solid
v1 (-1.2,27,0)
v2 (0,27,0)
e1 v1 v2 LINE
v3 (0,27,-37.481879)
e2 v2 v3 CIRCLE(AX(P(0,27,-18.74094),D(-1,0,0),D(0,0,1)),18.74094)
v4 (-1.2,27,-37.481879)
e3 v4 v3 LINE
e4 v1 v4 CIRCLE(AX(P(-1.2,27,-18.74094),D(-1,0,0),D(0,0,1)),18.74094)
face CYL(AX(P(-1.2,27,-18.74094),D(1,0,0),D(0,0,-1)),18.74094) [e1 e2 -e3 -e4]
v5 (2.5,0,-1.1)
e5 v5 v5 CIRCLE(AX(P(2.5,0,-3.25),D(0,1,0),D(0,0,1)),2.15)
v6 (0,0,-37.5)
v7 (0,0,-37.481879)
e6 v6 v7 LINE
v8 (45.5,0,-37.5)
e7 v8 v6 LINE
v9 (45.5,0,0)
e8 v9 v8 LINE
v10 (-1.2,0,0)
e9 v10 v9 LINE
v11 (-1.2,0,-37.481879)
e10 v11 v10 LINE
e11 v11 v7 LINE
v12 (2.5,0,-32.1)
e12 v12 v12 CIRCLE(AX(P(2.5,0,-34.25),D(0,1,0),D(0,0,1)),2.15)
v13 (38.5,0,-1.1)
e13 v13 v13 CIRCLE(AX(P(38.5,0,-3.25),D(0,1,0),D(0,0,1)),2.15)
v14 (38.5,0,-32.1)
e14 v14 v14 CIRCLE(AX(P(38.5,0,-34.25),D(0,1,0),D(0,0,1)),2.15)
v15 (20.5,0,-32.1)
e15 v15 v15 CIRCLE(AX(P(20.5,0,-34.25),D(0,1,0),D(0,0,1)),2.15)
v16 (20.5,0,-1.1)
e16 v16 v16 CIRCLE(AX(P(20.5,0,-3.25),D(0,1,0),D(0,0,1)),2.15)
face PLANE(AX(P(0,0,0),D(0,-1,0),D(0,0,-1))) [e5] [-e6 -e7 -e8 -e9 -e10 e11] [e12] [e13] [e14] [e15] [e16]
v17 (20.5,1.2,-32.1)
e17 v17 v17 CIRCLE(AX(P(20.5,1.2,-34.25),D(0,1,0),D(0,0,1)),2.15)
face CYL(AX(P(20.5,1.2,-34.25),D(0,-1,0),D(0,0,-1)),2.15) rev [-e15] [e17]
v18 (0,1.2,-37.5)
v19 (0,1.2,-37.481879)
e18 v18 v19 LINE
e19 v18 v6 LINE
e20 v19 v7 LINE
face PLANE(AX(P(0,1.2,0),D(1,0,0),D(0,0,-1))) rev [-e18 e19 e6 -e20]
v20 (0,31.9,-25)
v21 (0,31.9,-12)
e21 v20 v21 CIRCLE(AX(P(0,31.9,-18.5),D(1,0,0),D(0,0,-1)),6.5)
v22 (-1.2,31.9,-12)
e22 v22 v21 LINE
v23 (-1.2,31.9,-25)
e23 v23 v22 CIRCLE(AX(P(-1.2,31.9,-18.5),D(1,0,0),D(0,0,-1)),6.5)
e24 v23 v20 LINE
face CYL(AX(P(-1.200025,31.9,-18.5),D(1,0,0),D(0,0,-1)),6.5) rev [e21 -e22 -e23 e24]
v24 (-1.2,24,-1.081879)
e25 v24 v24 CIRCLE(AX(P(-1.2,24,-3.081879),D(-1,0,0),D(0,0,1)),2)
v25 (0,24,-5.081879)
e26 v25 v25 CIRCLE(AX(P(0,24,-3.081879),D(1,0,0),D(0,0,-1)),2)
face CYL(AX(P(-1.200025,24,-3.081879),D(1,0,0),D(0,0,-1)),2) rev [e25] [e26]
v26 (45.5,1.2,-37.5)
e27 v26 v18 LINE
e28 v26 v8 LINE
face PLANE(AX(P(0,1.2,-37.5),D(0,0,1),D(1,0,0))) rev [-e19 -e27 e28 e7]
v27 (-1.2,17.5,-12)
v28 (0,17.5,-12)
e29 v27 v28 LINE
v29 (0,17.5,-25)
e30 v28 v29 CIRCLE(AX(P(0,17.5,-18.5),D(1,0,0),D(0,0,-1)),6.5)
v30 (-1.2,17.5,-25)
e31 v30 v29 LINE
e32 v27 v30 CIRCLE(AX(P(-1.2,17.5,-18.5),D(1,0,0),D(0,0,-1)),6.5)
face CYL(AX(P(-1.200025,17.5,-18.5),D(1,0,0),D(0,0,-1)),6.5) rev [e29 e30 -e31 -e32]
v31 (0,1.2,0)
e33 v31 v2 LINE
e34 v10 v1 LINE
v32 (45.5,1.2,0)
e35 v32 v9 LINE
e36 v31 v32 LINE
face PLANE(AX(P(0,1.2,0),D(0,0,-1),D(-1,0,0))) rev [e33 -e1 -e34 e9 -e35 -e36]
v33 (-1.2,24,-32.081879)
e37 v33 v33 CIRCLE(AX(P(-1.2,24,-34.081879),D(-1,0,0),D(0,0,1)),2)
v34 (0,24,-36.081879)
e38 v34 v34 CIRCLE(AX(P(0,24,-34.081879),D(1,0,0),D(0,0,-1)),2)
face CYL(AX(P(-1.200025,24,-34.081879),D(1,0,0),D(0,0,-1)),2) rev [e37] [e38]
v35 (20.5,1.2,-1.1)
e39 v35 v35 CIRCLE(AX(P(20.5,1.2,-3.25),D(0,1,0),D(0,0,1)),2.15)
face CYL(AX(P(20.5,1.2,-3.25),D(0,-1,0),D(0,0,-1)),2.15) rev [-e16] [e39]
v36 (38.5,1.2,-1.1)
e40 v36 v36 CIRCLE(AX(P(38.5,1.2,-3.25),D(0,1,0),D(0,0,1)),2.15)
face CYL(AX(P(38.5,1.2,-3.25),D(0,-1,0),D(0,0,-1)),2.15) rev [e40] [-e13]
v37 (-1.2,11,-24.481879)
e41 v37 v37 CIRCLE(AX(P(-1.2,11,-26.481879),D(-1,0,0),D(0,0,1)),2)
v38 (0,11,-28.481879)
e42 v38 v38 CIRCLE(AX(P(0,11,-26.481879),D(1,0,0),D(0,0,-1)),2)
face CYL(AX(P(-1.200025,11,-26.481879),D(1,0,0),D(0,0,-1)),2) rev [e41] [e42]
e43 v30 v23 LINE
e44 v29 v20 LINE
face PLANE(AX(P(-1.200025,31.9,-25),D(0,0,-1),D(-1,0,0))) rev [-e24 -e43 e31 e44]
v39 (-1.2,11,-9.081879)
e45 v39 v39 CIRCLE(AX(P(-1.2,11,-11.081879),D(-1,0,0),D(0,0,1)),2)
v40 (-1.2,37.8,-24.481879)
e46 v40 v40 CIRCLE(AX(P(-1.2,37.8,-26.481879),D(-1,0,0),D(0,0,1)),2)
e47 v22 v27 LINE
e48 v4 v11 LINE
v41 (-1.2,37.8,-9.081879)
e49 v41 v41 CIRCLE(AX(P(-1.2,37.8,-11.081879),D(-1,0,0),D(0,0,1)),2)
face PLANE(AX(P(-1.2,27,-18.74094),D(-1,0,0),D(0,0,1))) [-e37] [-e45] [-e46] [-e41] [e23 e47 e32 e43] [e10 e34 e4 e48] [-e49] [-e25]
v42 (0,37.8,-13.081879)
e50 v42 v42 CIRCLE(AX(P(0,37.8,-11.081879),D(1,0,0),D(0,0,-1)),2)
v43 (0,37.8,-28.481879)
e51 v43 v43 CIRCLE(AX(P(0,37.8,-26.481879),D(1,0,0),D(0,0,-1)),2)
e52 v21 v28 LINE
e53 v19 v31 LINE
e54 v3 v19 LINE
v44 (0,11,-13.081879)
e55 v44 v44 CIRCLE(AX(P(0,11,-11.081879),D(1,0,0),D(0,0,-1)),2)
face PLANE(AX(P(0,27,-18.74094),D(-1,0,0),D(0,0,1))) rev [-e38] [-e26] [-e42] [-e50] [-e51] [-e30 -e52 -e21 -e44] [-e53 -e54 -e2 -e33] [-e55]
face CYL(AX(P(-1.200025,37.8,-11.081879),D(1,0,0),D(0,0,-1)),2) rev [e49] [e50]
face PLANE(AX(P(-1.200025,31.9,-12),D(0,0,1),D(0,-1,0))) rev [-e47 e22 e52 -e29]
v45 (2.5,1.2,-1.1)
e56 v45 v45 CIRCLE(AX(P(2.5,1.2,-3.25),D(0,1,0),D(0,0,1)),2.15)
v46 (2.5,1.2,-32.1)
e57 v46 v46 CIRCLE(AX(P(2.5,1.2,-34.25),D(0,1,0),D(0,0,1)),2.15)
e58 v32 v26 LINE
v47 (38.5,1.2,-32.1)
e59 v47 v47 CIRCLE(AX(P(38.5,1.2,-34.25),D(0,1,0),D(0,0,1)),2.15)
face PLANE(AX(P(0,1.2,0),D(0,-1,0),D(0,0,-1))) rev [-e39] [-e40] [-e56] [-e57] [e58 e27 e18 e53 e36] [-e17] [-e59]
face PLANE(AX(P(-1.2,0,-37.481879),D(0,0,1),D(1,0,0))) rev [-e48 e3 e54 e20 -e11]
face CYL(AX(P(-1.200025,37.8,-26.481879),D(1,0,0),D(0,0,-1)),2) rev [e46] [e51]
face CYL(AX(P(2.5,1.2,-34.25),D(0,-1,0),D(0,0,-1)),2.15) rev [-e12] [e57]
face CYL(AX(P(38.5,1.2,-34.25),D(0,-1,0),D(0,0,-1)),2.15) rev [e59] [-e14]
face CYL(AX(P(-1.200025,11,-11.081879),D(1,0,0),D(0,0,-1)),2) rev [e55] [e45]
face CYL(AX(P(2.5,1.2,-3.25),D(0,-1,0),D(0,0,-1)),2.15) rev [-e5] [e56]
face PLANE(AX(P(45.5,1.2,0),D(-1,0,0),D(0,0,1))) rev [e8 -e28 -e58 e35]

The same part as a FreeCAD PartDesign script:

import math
import FreeCAD as App
import Part
import Sketcher

V = App.Vector

doc = App.newDocument("Part")
body = doc.addObject("PartDesign::Body", "Body")

# Sketch on XZ plane
sketch1 = body.newObject("Sketcher::SketchObject", "Sketch")
sketch1.AttachmentSupport = (doc.getObject("XZ_Plane"), [""])
sketch1.MapMode = "FlatFace"
sketch1.addGeometry([
    Part.LineSegment(V(0, -37.5, 0), V(0, 0, 0)),  # 0
    Part.LineSegment(V(0, 0, 0), V(45.5, 0, 0)),  # 1
    Part.LineSegment(V(45.5, 0, 0), V(45.5, -37.5, 0)),  # 2
    Part.LineSegment(V(45.5, -37.5, 0), V(0, -37.5, 0)),  # 3
    Part.Circle(V(2.5, -3.2, 0), V(0, 0, 1), 2.1),  # 4
    Part.Circle(V(20.5, -3.2, 0), V(0, 0, 1), 2.1),  # 5
    Part.Circle(V(38.5, -3.2, 0), V(0, 0, 1), 2.1),  # 6
    Part.Circle(V(2.5, -34.2, 0), V(0, 0, 1), 2.1),  # 7
    Part.Circle(V(20.5, -34.2, 0), V(0, 0, 1), 2.1),  # 8
    Part.Circle(V(38.5, -34.2, 0), V(0, 0, 1), 2.1),  # 9
], False)
sketch1.addConstraint([
    Sketcher.Constraint("Coincident", 0, 2, 1, 1),
    Sketcher.Constraint("Coincident", 1, 2, 2, 1),
    Sketcher.Constraint("Coincident", 2, 2, 3, 1),
    Sketcher.Constraint("Coincident", 3, 2, 0, 1),
    Sketcher.Constraint("Vertical", 0),
    Sketcher.Constraint("Horizontal", 1),
    Sketcher.Constraint("Vertical", 2),
    Sketcher.Constraint("Horizontal", 3),
    Sketcher.Constraint("Coincident", 0, 2, -1, 1),
    Sketcher.Constraint("Equal", 4, 5),
    Sketcher.Constraint("Equal", 5, 6),
    Sketcher.Constraint("Equal", 6, 7),
    Sketcher.Constraint("Equal", 7, 8),
    Sketcher.Constraint("Equal", 8, 9),
    Sketcher.Constraint("Horizontal", 4, 3, 5, 3),
    Sketcher.Constraint("Horizontal", 5, 3, 6, 3),
    Sketcher.Constraint("Horizontal", 7, 3, 8, 3),
    Sketcher.Constraint("Horizontal", 8, 3, 9, 3),
    Sketcher.Constraint("Vertical", 4, 3, 7, 3),
    Sketcher.Constraint("Vertical", 5, 3, 8, 3),
    Sketcher.Constraint("Vertical", 6, 3, 9, 3),
    Sketcher.Constraint("Diameter", 4, 4.3),
    Sketcher.Constraint("DistanceX", 1, 1, 1, 2, 45.5),
    Sketcher.Constraint("DistanceY", 0, 1, 0, 2, 37.5),
    Sketcher.Constraint("DistanceX", 4, 3, 5, 3, 18.0),
    Sketcher.Constraint("DistanceX", 5, 3, 6, 3, 18.0),
    Sketcher.Constraint("DistanceY", 7, 3, 4, 3, 31.0),
    Sketcher.Constraint("DistanceX", 6, 3, 1, 2, 7.0),
    Sketcher.Constraint("DistanceY", 4, 3, -1, 1, 3.25),
])
pad1 = body.newObject("PartDesign::Pad", "Pad")
pad1.Profile = sketch1
pad1.Length = 1.2
pad1.Reversed = True

# Sketch on YZ plane
sketch2 = body.newObject("Sketcher::SketchObject", "Sketch001")
sketch2.AttachmentSupport = (doc.getObject("YZ_Plane"), [""])
sketch2.MapMode = "FlatFace"
sketch2.addGeometry([
    Part.LineSegment(V(27, -37, 0), V(0, -37, 0)),
    Part.LineSegment(V(0, -37, 0), V(0, 0, 0)),
    Part.LineSegment(V(0, 0, 0), V(27, 0, 0)),
    Part.ArcOfCircle(Part.Circle(V(27, -19, 0), V(0, 0, 1), 19), math.radians(-90), math.radians(90)),
], False)
sketch2.addConstraint([
    Sketcher.Constraint("Coincident", 0, 2, 1, 1),
    Sketcher.Constraint("Coincident", 1, 2, 2, 1),
    Sketcher.Constraint("Tangent", 2, 2, 3, 2),
    Sketcher.Constraint("Tangent", 3, 1, 0, 1),
    Sketcher.Constraint("Horizontal", 0),
    Sketcher.Constraint("Vertical", 1),
    Sketcher.Constraint("Horizontal", 2),
    Sketcher.Constraint("Coincident", 1, 2, -1, 1),
    Sketcher.Constraint("DistanceX", 0, 2, 0, 1, 27.0),
    Sketcher.Constraint("Radius", 3, 18.74094),
])
pad2 = body.newObject("PartDesign::Pad", "Pad001")
pad2.Profile = sketch2
pad2.Length = 1.2
pad2.Reversed = True

# Sketch on YZ plane
sketch3 = body.newObject("Sketcher::SketchObject", "Sketch002")
sketch3.AttachmentSupport = (doc.getObject("YZ_Plane"), [""])
sketch3.MapMode = "FlatFace"
sketch3.addGeometry([
    Part.LineSegment(V(18, -25, 0), V(32, -25, 0)),
    Part.ArcOfCircle(Part.Circle(V(32, -18, 0), V(0, 0, 1), 6), math.radians(-90), math.radians(90)),
    Part.LineSegment(V(32, -12, 0), V(18, -12, 0)),
    Part.ArcOfCircle(Part.Circle(V(18, -18, 0), V(0, 0, 1), 6), math.radians(90), math.radians(270)),
], False)
sketch3.addConstraint([
    Sketcher.Constraint("Tangent", 0, 2, 1, 1),
    Sketcher.Constraint("Tangent", 1, 2, 2, 1),
    Sketcher.Constraint("Tangent", 2, 2, 3, 1),
    Sketcher.Constraint("Tangent", 3, 2, 0, 1),
    Sketcher.Constraint("Horizontal", 0),
    Sketcher.Constraint("Horizontal", 2),
    Sketcher.Constraint("Radius", 1, 6.5),
    Sketcher.Constraint("DistanceX", 0, 1, 0, 2, 14.4),
    Sketcher.Constraint("DistanceY", 0, 2, -1, 1, 25.0),
    Sketcher.Constraint("DistanceX", -1, 1, 1, 3, 31.9),
])
pocket1 = body.newObject("PartDesign::Pocket", "Pocket")
pocket1.Profile = sketch3
pocket1.Type = "ThroughAll"

# Sketch on YZ plane
sketch4 = body.newObject("Sketcher::SketchObject", "Sketch003")
sketch4.AttachmentSupport = (doc.getObject("YZ_Plane"), [""])
sketch4.MapMode = "FlatFace"
sketch4.addGeometry([
    Part.Circle(V(11, -26.5, 0), V(0, 0, 1), 2),  # 0
    Part.Circle(V(37.8, -26.5, 0), V(0, 0, 1), 2),  # 1
    Part.Circle(V(11, -11.1, 0), V(0, 0, 1), 2),  # 2
    Part.Circle(V(37.8, -11.1, 0), V(0, 0, 1), 2),  # 3
    Part.Circle(V(24, -34.1, 0), V(0, 0, 1), 2),  # 4
    Part.Circle(V(24, -3.1, 0), V(0, 0, 1), 2),  # 5
], False)
sketch4.addConstraint([
    Sketcher.Constraint("Equal", 0, 1),
    Sketcher.Constraint("Equal", 1, 2),
    Sketcher.Constraint("Equal", 2, 3),
    Sketcher.Constraint("Equal", 3, 4),
    Sketcher.Constraint("Equal", 4, 5),
    Sketcher.Constraint("Horizontal", 0, 3, 1, 3),
    Sketcher.Constraint("Horizontal", 2, 3, 3, 3),
    Sketcher.Constraint("Vertical", 0, 3, 2, 3),
    Sketcher.Constraint("Vertical", 1, 3, 3, 3),
    Sketcher.Constraint("Vertical", 4, 3, 5, 3),
    Sketcher.Constraint("Diameter", 0, 4.0),
    Sketcher.Constraint("DistanceX", -1, 1, 0, 3, 11.0),
    Sketcher.Constraint("DistanceX", -1, 1, 4, 3, 24.0),
    Sketcher.Constraint("DistanceY", 4, 3, 2, 3, 23.0),
    Sketcher.Constraint("DistanceY", 2, 3, 5, 3, 8.0),
    Sketcher.Constraint("DistanceX", -1, 1, 1, 3, 37.8),
    Sketcher.Constraint("DistanceY", 0, 3, 2, 3, 15.4),
    Sketcher.Constraint("DistanceY", 0, 3, -1, 1, 26.481879),
])
pocket2 = body.newObject("PartDesign::Pocket", "Pocket001")
pocket2.Profile = sketch4
pocket2.Type = "ThroughAll"

doc.recompute()
